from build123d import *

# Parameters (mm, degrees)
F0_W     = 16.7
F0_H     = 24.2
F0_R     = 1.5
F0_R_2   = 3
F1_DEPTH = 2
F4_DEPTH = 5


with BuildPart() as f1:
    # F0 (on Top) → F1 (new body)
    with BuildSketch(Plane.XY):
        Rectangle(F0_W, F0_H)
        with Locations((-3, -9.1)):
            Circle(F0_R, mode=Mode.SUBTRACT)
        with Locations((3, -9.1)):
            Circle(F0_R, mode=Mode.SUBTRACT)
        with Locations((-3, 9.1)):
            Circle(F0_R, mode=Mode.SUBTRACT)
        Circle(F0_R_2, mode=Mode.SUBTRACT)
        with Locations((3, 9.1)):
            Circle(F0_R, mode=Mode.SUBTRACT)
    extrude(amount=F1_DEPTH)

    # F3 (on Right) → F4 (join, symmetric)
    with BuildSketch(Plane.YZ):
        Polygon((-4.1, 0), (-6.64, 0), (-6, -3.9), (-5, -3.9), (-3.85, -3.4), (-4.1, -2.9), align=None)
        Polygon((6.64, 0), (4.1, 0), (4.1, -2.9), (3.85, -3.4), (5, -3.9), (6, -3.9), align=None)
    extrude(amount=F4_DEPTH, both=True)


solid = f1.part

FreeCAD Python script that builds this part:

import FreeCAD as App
import Part
import Sketcher
Q = App.Units.Quantity

doc = App.newDocument("Part")
body = doc.addObject("PartDesign::Body", "Body")

sketch1 = doc.addObject("Sketcher::SketchObject", "Sketch")
body.addObject(sketch1)
sketch1.AttachmentSupport = (doc.XY_Plane, [""])
sketch1.MapMode = "FlatFace"
sketch1.addGeometry([
    Part.LineSegment(App.Vector(-8.35, 12.1, 0), App.Vector(-8.35, -12.1, 0)),
    Part.LineSegment(App.Vector(-8.35, -12.1, 0), App.Vector(8.35, -12.1, 0)),
    Part.LineSegment(App.Vector(8.35, -12.1, 0), App.Vector(8.35, 12.1, 0)),
    Part.LineSegment(App.Vector(8.35, 12.1, 0), App.Vector(-8.35, 12.1, 0)),
    Part.Circle(App.Vector(-3, -9.1, 0), App.Vector(0, 0, 1), 1.5),
    Part.Circle(App.Vector(3, -9.1, 0), App.Vector(0, 0, 1), 1.5),
    Part.Circle(App.Vector(-3, 9.1, 0), App.Vector(0, 0, 1), 1.5),
    Part.Circle(App.Vector(0, 0, 0), App.Vector(0, 0, 1), 3),
    Part.Circle(App.Vector(3, 9.1, 0), App.Vector(0, 0, 1), 1.5),
], False)
sketch1.addConstraint([
    Sketcher.Constraint("Coincident", 0, 2, 1, 1),
    Sketcher.Constraint("Coincident", 1, 2, 2, 1),
    Sketcher.Constraint("Coincident", 2, 2, 3, 1),
    Sketcher.Constraint("Coincident", 3, 2, 0, 1),
    Sketcher.Constraint("Vertical", 0),
    Sketcher.Constraint("Horizontal", 1),
    Sketcher.Constraint("Vertical", 2),
    Sketcher.Constraint("Horizontal", 3),
    Sketcher.Constraint("Coincident", 7, 3, -1, 1),
    Sketcher.Constraint("Equal", 4, 5),
    Sketcher.Constraint("Equal", 5, 6),
    Sketcher.Constraint("Equal", 6, 8),
    Sketcher.Constraint("Symmetric", 5, 3, 6, 3, -1, 1),
    Sketcher.Constraint("Symmetric", 4, 3, 8, 3, -1, 1),
    Sketcher.Constraint("Symmetric", 0, 2, 2, 2, -1, 1),
    Sketcher.Constraint("Symmetric", 4, 3, 5, 3, -2),
    Sketcher.Constraint("Diameter", 4, Q("3 mm")),
    Sketcher.Constraint("Diameter", 7, Q("6 mm")),
    Sketcher.Constraint("DistanceX", 1, 1, 1, 2, Q("16.7 mm")),
    Sketcher.Constraint("DistanceY", 0, 2, 0, 1, Q("24.2 mm")),
    Sketcher.Constraint("DistanceX", 4, 3, -1, 1, Q("3 mm")),
    Sketcher.Constraint("DistanceY", 0, 2, 4, 3, Q("3 mm")),
])
pad1 = doc.addObject("PartDesign::Pad", "Pad")
body.addObject(pad1)
pad1.Profile = sketch1
pad1.Length = 2

sketch2 = doc.addObject("Sketcher::SketchObject", "Sketch001")
body.addObject(sketch2)
sketch2.AttachmentSupport = (doc.YZ_Plane, [""])
sketch2.MapMode = "FlatFace"
sketch2.addGeometry([
    Part.LineSegment(App.Vector(-4.1, 0, 0), App.Vector(-6.64, 0, 0)),
    Part.LineSegment(App.Vector(-6.64, 0, 0), App.Vector(-6, -3.9, 0)),
    Part.LineSegment(App.Vector(-6, -3.9, 0), App.Vector(-5, -3.9, 0)),
    Part.LineSegment(App.Vector(-5, -3.9, 0), App.Vector(-3.85, -3.4, 0)),
    Part.LineSegment(App.Vector(-3.85, -3.4, 0), App.Vector(-4.1, -2.9, 0)),
    Part.LineSegment(App.Vector(-4.1, -2.9, 0), App.Vector(-4.1, 0, 0)),
    Part.LineSegment(App.Vector(6.64, 0, 0), App.Vector(4.1, 0, 0)),
    Part.LineSegment(App.Vector(4.1, 0, 0), App.Vector(4.1, -2.9, 0)),
    Part.LineSegment(App.Vector(4.1, -2.9, 0), App.Vector(3.85, -3.4, 0)),
    Part.LineSegment(App.Vector(3.85, -3.4, 0), App.Vector(5, -3.9, 0)),
    Part.LineSegment(App.Vector(5, -3.9, 0), App.Vector(6, -3.9, 0)),
    Part.LineSegment(App.Vector(6, -3.9, 0), App.Vector(6.64, 0, 0)),
], False)
sketch2.addConstraint([
    Sketcher.Constraint("Coincident", 0, 2, 1, 1),
    Sketcher.Constraint("Coincident", 1, 2, 2, 1),
    Sketcher.Constraint("Coincident", 2, 2, 3, 1),
    Sketcher.Constraint("Coincident", 3, 2, 4, 1),
    Sketcher.Constraint("Coincident", 4, 2, 5, 1),
    Sketcher.Constraint("Coincident", 5, 2, 0, 1),
    Sketcher.Constraint("Coincident", 6, 2, 7, 1),
    Sketcher.Constraint("Coincident", 7, 2, 8, 1),
    Sketcher.Constraint("Coincident", 8, 2, 9, 1),
    Sketcher.Constraint("Coincident", 9, 2, 10, 1),
    Sketcher.Constraint("Coincident", 10, 2, 11, 1),
    Sketcher.Constraint("Coincident", 11, 2, 6, 1),
    Sketcher.Constraint("Horizontal", 0),
    Sketcher.Constraint("Horizontal", 2),
    Sketcher.Constraint("Vertical", 5),
    Sketcher.Constraint("Horizontal", 6),
    Sketcher.Constraint("Vertical", 7),
    Sketcher.Constraint("Horizontal", 10),
    Sketcher.Constraint("Symmetric", 5, 2, 6, 2, -1, 1),
    Sketcher.Constraint("Symmetric", 3, 2, 8, 2, -2),
    Sketcher.Constraint("Symmetric", 2, 2, 9, 2, -2),
    Sketcher.Constraint("Symmetric", 0, 2, 11, 2, -2),
    Sketcher.Constraint("Horizontal", 4, 2, 7, 2),
    Sketcher.Constraint("Equal", 2, 10),
    Sketcher.Constraint("DistanceX", 2, 1, 2, 2, Q("1 mm")),
    Sketcher.Constraint("DistanceY", 5, 1, 5, 2, Q("2.9 mm")),
    Sketcher.Constraint("DistanceX", 1, 2, -1, 1, Q("6 mm")),
    Sketcher.Constraint("DistanceY", 2, 2, 4, 2, Q("1 mm")),
    Sketcher.Constraint("DistanceX", 0, 2, 0, 1, Q("2.54 mm")),
    Sketcher.Constraint("DistanceY", 3, 2, -1, 1, Q("3.4 mm")),
    Sketcher.Constraint("DistanceX", 4, 2, -1, 1, Q("4.1 mm")),
    Sketcher.Constraint("DistanceX", 3, 2, 8, 2, Q("7.7 mm")),
])
pad2 = doc.addObject("PartDesign::Pad", "Pad001")
body.addObject(pad2)
pad2.Profile = sketch2
pad2.Length = 10
pad2.Midplane = True

doc.recompute()
